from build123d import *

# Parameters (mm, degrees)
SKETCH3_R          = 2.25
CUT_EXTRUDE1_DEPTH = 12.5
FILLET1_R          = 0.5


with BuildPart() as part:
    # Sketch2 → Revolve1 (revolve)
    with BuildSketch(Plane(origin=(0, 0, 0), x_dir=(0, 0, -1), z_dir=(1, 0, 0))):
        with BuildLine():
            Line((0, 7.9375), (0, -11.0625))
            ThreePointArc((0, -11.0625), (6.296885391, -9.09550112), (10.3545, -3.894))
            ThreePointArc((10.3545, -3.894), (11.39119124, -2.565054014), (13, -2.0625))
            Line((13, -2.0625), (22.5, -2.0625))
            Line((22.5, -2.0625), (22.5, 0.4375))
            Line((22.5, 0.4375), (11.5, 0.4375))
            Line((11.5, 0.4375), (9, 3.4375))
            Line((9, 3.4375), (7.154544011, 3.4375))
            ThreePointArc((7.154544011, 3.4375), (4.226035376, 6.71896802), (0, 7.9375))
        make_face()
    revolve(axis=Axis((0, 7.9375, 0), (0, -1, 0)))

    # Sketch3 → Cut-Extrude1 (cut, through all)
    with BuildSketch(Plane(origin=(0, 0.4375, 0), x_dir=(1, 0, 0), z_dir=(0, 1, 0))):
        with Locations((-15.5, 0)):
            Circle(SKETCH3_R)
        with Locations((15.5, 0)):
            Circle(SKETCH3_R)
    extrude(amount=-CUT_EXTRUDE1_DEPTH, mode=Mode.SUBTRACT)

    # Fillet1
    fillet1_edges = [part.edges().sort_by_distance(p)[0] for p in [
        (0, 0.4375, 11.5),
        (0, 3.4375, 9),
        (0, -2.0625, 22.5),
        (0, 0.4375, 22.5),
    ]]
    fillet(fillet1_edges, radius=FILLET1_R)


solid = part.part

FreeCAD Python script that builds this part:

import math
import FreeCAD as App
import Part
import Sketcher
Q = App.Units.Quantity


def edges_at(feature, points):
    """Names of the edges that pass closest to the given points."""
    edges = feature.Shape.Edges
    near = lambda p: min(range(len(edges)), key=lambda i: edges[i].distToShape(Part.Vertex(*p))[0])
    return sorted({f"Edge{near(p) + 1}" for p in points})

doc = App.newDocument("Part")
body = doc.addObject("PartDesign::Body", "Body")

sketch1 = doc.addObject("Sketcher::SketchObject", "Sketch")
body.addObject(sketch1)
sketch1.AttachmentSupport = (doc.YZ_Plane, [""])
sketch1.MapMode = "FlatFace"
sketch1.addGeometry(Part.LineSegment(App.Vector(7.9, 0, 0), App.Vector(-11.1, 0, 0)), False)
sketch1.addGeometry(Part.ArcOfCircle(Part.Circle(App.Vector(0, 0, 0), App.Vector(0, 0, 1), 11.1), math.radians(180), math.radians(249)), False)
sketch1.addGeometry(Part.ArcOfCircle(Part.Circle(App.Vector(-4.9, -13, 0), App.Vector(0, 0, 1), 2.8), math.radians(0), math.radians(69)), False)
sketch1.addGeometry(Part.LineSegment(App.Vector(-2.1, -13, 0), App.Vector(-2.1, -22.5, 0)), False)
sketch1.addGeometry(Part.LineSegment(App.Vector(-2.1, -22.5, 0), App.Vector(0.4, -22.5, 0)), False)
sketch1.addGeometry(Part.LineSegment(App.Vector(0.4, -22.5, 0), App.Vector(0.4, -11.5, 0)), False)
sketch1.addGeometry(Part.LineSegment(App.Vector(0.4, -11.5, 0), App.Vector(3.4, -9, 0)), False)
sketch1.addGeometry(Part.LineSegment(App.Vector(3.4, -9, 0), App.Vector(3.4, -7.2, 0)), False)
sketch1.addGeometry(Part.ArcOfCircle(Part.Circle(App.Vector(0, 0, 0), App.Vector(0, 0, 1), 7.9), math.radians(-64), math.radians(0)), False)
sketch1.addConstraint(Sketcher.Constraint("Coincident", 0, 2, 1, 1))
sketch1.addConstraint(Sketcher.Constraint("Tangent", 1, 2, 2, 2))
sketch1.addConstraint(Sketcher.Constraint("Tangent", 2, 1, 3, 1))
sketch1.addConstraint(Sketcher.Constraint("Coincident", 3, 2, 4, 1))
sketch1.addConstraint(Sketcher.Constraint("Coincident", 4, 2, 5, 1))
sketch1.addConstraint(Sketcher.Constraint("Coincident", 5, 2, 6, 1))
sketch1.addConstraint(Sketcher.Constraint("Coincident", 6, 2, 7, 1))
sketch1.addConstraint(Sketcher.Constraint("Coincident", 7, 2, 8, 1))
sketch1.addConstraint(Sketcher.Constraint("Coincident", 8, 2, 0, 1))
sketch1.addConstraint(Sketcher.Constraint("Horizontal", 0))
sketch1.addConstraint(Sketcher.Constraint("Vertical", 3))
sketch1.addConstraint(Sketcher.Constraint("Horizontal", 4))
sketch1.addConstraint(Sketcher.Constraint("Vertical", 5))
sketch1.addConstraint(Sketcher.Constraint("Vertical", 7))
sketch1.addConstraint(Sketcher.Constraint("Coincident", 1, 3, -1, 1))
sketch1.addConstraint(Sketcher.Constraint("Coincident", 8, 3, -1, 1))
sketch1.addConstraint(Sketcher.Constraint("PointOnObject", 0, 2, -1))
sketch1.addConstraint(Sketcher.Constraint("DistanceX", 0, 2, 0, 1, Q("19 mm")))
sketch1.addConstraint(Sketcher.Constraint("DistanceY", 5, 1, 5, 2, Q("11 mm")))
sketch1.addConstraint(Sketcher.Constraint("DistanceX", 4, 1, 4, 2, Q("2.5 mm")))
sketch1.addConstraint(Sketcher.Constraint("DistanceY", 3, 2, 3, 1, Q("9.5 mm")))
sketch1.addConstraint(Sketcher.Constraint("DistanceY", 2, 3, -1, 1, Q("13 mm")))
sketch1.addConstraint(Sketcher.Constraint("DistanceY", 6, 2, -1, 1, Q("9 mm")))
sketch1.addConstraint(Sketcher.Constraint("DistanceX", 0, 2, 2, 1, Q("9 mm")))
sketch1.addConstraint(Sketcher.Constraint("DistanceX", 5, 2, 6, 2, Q("3 mm")))
sketch1.addConstraint(Sketcher.Constraint("Radius", 1, Q("11.0625 mm")))
revolution = doc.addObject("PartDesign::Revolution", "Revolution")
body.addObject(revolution)
revolution.Profile = sketch1
revolution.ReferenceAxis = (sketch1, ["H_Axis"])
revolution.Angle = 360

sketch2 = doc.addObject("Sketcher::SketchObject", "Sketch001")
body.addObject(sketch2)
sketch2.AttachmentSupport = (doc.XZ_Plane, [""])
sketch2.MapMode = "FlatFace"
sketch2.AttachmentOffset = App.Placement(App.Vector(0, 0, -0.4375), App.Rotation())
sketch2.addGeometry(Part.Circle(App.Vector(-15.5, 0, 0), App.Vector(0, 0, 1), 2.2), False)
sketch2.addGeometry(Part.Circle(App.Vector(15.5, 0, 0), App.Vector(0, 0, 1), 2.2), False)
sketch2.addConstraint(Sketcher.Constraint("Equal", 0, 1))
sketch2.addConstraint(Sketcher.Constraint("Symmetric", 0, 3, 1, 3, -1, 1))
sketch2.addConstraint(Sketcher.Constraint("PointOnObject", 0, 3, -1))
sketch2.addConstraint(Sketcher.Constraint("Diameter", 0, Q("4.5 mm")))
sketch2.addConstraint(Sketcher.Constraint("DistanceX", 0, 3, 1, 3, Q("31 mm")))
pocket1 = doc.addObject("PartDesign::Pocket", "Pocket")
body.addObject(pocket1)
pocket1.Profile = sketch2
pocket1.Type = "ThroughAll"
pocket1.Reversed = True
doc.recompute()

fillet = doc.addObject("PartDesign::Fillet", "Fillet")
body.addObject(fillet)
fillet.Base = (pocket1, edges_at(pocket1, [
    (0, 0.438, 11.5),
    (0, 3.438, 9),
    (0, -2.062, 22.5),
    (0, 0.438, 22.5),
]))
fillet.Radius = 0.5

doc.recompute()
